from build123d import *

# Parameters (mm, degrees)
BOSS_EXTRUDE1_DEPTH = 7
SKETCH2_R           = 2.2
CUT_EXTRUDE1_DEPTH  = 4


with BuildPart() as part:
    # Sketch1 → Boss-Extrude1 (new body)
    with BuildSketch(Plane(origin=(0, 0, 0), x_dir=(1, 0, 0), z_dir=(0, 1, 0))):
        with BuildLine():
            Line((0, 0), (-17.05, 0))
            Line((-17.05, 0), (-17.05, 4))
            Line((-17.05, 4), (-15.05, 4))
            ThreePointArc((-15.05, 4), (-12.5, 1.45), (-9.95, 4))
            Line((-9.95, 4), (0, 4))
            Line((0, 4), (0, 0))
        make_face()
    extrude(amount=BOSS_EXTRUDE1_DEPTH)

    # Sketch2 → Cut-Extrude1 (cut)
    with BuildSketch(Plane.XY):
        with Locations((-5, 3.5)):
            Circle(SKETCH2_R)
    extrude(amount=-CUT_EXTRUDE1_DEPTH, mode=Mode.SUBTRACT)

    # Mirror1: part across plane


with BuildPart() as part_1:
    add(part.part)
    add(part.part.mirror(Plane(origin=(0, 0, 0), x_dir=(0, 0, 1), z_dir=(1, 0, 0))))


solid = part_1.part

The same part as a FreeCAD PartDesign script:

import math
import FreeCAD as App
import Part
import Sketcher
Q = App.Units.Quantity

doc = App.newDocument("Part")
params = doc.addObject("Spreadsheet::Sheet", "Params")
for row, (alias, value) in enumerate([
    ("sketch1_width", "2 mm"),
    ("sketch1_height", "4 mm"),
    ("sketch1_radius", "2.55 mm"),
    ("sketch1_width2", "17.05 mm"),
    ("pad1_length", "7 mm"),
    ("sketch2_diameter", "4.4 mm"),
    ("pocket1_length", "4 mm"),
], start=1):
    params.set(f"A{row}", alias)
    params.set(f"B{row}", "=" + value)
    params.setAlias(f"B{row}", alias)

body = doc.addObject("PartDesign::Body", "Body")

# Sketch on XZ plane
sketch1 = body.newObject("Sketcher::SketchObject", "Sketch")
sketch1.AttachmentSupport = (doc.getObject("XZ_Plane"), [""])
sketch1.MapMode = "FlatFace"
sketch1.addGeometry([
    Part.LineSegment(App.Vector(-17.1, 0, 0), App.Vector(0, 0, 0)),  # 0
    Part.LineSegment(App.Vector(0, 0, 0), App.Vector(0, -4, 0)),  # 1
    Part.LineSegment(App.Vector(0, -4, 0), App.Vector(-9.9, -4, 0)),  # 2
    Part.ArcOfCircle(Part.Circle(App.Vector(-12.5, -4, 0), App.Vector(0, 0, 1), 2.5), math.radians(0), math.radians(180)),  # 3
    Part.LineSegment(App.Vector(-15.1, -4, 0), App.Vector(-17.1, -4, 0)),  # 4
    Part.LineSegment(App.Vector(-17.1, -4, 0), App.Vector(-17.1, 0, 0)),  # 5
], False)
sketch1.addConstraint([
    Sketcher.Constraint("Coincident", 0, 2, 1, 1),
    Sketcher.Constraint("Coincident", 1, 2, 2, 1),
    Sketcher.Constraint("Coincident", 2, 2, 3, 1),
    Sketcher.Constraint("Coincident", 3, 2, 4, 1),
    Sketcher.Constraint("Coincident", 4, 2, 5, 1),
    Sketcher.Constraint("Coincident", 5, 2, 0, 1),
    Sketcher.Constraint("Horizontal", 0),
    Sketcher.Constraint("Vertical", 1),
    Sketcher.Constraint("Horizontal", 2),
    Sketcher.Constraint("Horizontal", 4),
    Sketcher.Constraint("Vertical", 5),
    Sketcher.Constraint("Coincident", 0, 2, -1, 1),
    Sketcher.Constraint("Horizontal", 3, 3, 1, 2),
    Sketcher.Constraint("Horizontal", 2, 2, 3, 2),
    Sketcher.Constraint("DistanceX", 4, 2, 4, 1, Q("2 mm")),
    Sketcher.Constraint("DistanceY", 1, 2, 1, 1, Q("4 mm")),
    Sketcher.Constraint("Radius", 3, Q("2.55 mm")),
    Sketcher.Constraint("DistanceX", 0, 1, 0, 2, Q("17.05 mm")),
])
sketch1.setExpression("Constraints[14]", "Params.sketch1_width")
sketch1.setExpression("Constraints[15]", "Params.sketch1_height")
sketch1.setExpression("Constraints[16]", "Params.sketch1_radius")
sketch1.setExpression("Constraints[17]", "Params.sketch1_width2")
pad1 = body.newObject("PartDesign::Pad", "Pad")
pad1.Profile = sketch1
pad1.setExpression("Length", "Params.pad1_length")
pad1.Reversed = True

# Sketch on XY plane
sketch2 = body.newObject("Sketcher::SketchObject", "Sketch001")
sketch2.AttachmentSupport = (doc.getObject("XY_Plane"), [""])
sketch2.MapMode = "FlatFace"
sketch2.addGeometry(Part.Circle(App.Vector(-5, 3.5, 0), App.Vector(0, 0, 1), 2.2), False)
sketch2.addConstraint([
    Sketcher.Constraint("Diameter", 0, Q("4.4 mm")),
    Sketcher.Constraint("DistanceX", 0, 3, -1, 1, Q("5 mm")),
    Sketcher.Constraint("DistanceY", -1, 1, 0, 3, Q("3.5 mm")),
])
sketch2.setExpression("Constraints[0]", "Params.sketch2_diameter")
pocket1 = body.newObject("PartDesign::Pocket", "Pocket")
pocket1.Profile = sketch2
pocket1.setExpression("Length", "Params.pocket1_length")
body2 = doc.addObject("PartDesign::Body", "Body001")
doc.recompute()

body2.BaseFeature = body
doc.recompute()

mirroring = doc.addObject("Part::Mirroring", "Mirroring")
mirroring.Source = body
mirroring.Base = App.Vector(0, 0, 0)
mirroring.Normal = App.Vector(1, 0, 0)
body3 = doc.addObject("PartDesign::Body", "Body002")
body3.BaseFeature = mirroring
boolean = body2.newObject("PartDesign::Boolean", "Boolean")
boolean.Type = "Fuse"
boolean.addObjects([body3])
doc.recompute()
mirroring.Visibility = False

doc.recompute()
